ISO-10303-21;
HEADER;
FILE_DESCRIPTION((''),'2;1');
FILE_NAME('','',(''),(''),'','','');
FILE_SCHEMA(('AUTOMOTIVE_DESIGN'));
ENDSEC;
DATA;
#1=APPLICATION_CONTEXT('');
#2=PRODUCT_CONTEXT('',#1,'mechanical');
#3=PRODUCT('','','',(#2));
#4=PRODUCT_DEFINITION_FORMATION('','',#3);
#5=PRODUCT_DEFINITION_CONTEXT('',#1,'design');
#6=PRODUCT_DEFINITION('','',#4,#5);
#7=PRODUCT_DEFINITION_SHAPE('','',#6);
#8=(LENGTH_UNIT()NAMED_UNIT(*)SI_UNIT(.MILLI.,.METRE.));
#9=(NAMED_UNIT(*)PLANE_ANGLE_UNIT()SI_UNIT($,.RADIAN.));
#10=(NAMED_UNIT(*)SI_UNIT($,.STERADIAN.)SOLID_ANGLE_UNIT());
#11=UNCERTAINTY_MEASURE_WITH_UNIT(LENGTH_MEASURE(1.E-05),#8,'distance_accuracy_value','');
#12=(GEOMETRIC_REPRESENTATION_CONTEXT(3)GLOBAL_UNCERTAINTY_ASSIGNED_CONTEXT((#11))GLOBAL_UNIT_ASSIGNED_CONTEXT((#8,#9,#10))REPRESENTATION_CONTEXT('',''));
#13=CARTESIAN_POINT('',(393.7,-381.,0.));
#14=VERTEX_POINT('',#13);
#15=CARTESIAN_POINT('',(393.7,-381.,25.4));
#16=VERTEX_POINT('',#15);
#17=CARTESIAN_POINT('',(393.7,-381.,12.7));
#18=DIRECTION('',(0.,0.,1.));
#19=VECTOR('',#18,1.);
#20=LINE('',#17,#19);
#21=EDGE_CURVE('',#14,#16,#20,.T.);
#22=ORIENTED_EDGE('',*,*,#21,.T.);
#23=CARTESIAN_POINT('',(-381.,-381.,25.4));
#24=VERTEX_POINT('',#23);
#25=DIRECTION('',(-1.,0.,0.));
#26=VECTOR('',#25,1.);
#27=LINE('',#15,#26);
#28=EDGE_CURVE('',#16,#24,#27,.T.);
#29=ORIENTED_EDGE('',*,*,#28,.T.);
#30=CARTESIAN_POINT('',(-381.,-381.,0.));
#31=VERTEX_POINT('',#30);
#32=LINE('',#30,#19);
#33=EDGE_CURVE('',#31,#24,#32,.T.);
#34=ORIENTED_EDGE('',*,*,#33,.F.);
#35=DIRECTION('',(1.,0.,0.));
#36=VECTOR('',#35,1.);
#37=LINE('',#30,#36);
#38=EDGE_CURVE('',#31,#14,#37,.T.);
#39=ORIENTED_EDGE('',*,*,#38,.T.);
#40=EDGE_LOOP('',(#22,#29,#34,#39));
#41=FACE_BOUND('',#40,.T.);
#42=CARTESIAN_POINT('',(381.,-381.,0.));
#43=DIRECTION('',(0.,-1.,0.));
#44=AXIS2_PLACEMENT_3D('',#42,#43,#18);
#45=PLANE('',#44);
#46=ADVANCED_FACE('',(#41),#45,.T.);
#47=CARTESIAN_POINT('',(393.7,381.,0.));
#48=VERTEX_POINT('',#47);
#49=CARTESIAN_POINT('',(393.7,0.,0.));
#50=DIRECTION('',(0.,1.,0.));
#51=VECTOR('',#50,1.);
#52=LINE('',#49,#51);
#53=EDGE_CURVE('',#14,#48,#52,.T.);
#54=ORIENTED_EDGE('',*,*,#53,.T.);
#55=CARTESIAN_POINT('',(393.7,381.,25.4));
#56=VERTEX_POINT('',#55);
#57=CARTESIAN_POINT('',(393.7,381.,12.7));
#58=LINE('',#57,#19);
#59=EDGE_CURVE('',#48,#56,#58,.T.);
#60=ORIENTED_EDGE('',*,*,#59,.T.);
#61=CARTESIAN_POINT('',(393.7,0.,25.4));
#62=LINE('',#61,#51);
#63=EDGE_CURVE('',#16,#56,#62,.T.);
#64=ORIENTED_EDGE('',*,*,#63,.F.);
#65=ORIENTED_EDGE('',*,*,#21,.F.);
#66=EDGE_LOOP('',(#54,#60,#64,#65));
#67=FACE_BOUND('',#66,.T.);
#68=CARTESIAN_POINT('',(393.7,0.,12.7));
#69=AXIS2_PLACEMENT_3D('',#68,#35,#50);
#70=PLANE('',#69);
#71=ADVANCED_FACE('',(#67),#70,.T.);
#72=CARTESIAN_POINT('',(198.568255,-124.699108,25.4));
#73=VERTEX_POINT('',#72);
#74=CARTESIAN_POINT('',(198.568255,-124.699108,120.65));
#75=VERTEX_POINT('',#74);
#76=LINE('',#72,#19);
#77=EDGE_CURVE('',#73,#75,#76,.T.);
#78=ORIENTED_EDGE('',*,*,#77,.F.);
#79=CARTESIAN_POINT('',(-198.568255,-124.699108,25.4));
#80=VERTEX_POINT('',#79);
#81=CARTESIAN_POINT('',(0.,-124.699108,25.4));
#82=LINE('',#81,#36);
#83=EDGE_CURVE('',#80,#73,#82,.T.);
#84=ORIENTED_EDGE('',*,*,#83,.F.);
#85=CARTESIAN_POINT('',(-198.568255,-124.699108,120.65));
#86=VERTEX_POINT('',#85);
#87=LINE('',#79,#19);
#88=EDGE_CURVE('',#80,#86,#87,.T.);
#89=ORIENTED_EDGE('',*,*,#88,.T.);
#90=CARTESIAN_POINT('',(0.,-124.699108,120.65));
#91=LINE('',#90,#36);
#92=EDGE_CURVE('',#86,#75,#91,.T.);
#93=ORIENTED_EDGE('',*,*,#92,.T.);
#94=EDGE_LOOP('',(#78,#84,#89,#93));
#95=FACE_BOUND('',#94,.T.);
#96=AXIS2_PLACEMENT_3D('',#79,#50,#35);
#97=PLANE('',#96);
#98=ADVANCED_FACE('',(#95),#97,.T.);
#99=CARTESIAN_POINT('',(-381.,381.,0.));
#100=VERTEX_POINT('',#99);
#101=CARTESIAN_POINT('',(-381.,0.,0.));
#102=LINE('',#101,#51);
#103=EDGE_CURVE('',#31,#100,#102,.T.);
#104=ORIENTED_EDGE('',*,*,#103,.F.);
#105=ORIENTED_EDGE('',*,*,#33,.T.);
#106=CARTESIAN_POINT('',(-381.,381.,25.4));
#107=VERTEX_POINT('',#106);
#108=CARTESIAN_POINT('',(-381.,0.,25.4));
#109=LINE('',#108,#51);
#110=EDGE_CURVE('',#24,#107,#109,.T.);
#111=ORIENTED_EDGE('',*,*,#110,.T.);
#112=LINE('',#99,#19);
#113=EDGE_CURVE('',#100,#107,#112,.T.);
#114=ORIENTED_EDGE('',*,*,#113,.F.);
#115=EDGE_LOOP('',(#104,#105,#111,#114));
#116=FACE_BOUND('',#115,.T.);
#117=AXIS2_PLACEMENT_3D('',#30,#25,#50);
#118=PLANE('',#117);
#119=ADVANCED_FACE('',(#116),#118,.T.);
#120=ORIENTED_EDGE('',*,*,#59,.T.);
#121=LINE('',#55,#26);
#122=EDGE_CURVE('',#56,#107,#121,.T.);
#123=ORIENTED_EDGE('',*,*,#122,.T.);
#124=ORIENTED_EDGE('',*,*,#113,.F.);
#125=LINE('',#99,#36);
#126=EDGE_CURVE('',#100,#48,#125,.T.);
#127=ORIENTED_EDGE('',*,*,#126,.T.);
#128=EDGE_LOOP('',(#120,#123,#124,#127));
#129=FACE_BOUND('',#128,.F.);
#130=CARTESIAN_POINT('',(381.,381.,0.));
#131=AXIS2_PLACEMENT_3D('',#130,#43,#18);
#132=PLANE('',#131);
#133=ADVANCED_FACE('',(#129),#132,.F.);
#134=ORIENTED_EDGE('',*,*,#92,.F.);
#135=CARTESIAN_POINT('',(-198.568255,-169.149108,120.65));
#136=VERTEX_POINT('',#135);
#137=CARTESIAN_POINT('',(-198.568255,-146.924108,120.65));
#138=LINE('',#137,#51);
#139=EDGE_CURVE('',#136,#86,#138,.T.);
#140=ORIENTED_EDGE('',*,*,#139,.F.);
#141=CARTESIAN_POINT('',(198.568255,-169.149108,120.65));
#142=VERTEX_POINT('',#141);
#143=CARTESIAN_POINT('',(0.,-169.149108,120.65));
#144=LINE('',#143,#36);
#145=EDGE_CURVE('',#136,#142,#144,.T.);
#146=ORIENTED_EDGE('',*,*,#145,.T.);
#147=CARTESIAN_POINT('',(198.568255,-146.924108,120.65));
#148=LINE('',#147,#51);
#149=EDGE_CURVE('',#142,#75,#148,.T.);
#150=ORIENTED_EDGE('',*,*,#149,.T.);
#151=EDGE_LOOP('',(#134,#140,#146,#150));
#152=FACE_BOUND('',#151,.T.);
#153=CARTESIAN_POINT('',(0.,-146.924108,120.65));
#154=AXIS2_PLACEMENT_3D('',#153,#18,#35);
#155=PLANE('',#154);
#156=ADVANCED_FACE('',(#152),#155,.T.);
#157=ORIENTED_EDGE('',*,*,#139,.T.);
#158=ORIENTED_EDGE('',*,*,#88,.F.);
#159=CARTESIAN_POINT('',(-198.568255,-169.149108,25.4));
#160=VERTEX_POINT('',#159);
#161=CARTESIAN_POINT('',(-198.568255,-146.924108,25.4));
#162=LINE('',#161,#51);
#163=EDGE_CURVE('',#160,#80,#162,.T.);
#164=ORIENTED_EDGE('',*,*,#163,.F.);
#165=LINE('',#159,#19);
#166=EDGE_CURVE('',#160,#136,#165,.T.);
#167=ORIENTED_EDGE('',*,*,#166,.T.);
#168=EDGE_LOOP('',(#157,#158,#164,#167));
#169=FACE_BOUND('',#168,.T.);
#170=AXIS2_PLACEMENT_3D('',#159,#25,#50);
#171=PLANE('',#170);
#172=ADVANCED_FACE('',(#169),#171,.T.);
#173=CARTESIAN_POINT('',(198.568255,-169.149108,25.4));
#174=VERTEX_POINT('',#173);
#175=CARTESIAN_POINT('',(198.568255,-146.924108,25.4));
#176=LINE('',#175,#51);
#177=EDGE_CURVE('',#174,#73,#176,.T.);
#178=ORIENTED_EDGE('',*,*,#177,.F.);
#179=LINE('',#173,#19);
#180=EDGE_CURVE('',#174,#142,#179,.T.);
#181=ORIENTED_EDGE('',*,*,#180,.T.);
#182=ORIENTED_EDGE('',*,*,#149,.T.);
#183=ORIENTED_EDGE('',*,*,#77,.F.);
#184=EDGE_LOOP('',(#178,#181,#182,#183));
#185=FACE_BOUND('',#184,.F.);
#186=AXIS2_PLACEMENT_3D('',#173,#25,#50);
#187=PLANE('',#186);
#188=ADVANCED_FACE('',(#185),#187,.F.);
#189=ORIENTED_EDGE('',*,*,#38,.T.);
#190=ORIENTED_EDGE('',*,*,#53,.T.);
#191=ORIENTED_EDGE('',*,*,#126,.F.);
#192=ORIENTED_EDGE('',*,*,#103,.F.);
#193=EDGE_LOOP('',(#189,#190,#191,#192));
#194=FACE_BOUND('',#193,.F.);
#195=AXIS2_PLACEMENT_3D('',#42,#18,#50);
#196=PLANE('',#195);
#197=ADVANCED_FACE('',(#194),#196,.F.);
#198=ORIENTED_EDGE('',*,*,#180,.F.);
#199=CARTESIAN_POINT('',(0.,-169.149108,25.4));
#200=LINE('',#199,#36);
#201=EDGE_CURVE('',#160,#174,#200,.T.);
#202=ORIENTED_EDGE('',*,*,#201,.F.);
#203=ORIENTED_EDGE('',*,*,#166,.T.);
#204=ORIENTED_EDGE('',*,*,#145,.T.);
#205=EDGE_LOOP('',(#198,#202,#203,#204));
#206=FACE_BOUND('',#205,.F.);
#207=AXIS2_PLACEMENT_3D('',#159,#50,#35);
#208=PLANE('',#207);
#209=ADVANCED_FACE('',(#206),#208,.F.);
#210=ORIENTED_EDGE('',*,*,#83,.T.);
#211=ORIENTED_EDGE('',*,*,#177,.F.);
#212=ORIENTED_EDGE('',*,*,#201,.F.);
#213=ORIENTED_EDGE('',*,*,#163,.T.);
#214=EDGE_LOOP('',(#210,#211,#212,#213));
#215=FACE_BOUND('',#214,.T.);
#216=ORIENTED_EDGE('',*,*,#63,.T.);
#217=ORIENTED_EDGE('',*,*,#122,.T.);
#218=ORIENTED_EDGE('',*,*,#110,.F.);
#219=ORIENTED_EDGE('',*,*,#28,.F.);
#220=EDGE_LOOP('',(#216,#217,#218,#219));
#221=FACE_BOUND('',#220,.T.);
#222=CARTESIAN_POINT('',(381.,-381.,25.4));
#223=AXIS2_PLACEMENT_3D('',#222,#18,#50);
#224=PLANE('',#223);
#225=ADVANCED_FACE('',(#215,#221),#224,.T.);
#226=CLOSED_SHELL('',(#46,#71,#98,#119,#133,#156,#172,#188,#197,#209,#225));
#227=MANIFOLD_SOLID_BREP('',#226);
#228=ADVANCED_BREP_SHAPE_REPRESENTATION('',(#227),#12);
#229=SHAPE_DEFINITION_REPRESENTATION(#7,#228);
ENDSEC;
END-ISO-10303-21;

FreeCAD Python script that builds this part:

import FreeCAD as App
import Part
import Sketcher
Q = App.Units.Quantity


def add_polygon(sketch, points):
    """Adds a closed chain of lines whose ends are joined by coincident constraints."""
    first, n = sketch.GeometryCount, len(points)
    for a, b in zip(points, points[1:] + points[:1]):
        sketch.addGeometry(Part.LineSegment(App.Vector(*a, 0), App.Vector(*b, 0)), False)
    for i in range(n):
        sketch.addConstraint(Sketcher.Constraint("Coincident", first + i, 2, first + (i + 1) % n, 1))

doc = App.newDocument("Part")
body = doc.addObject("PartDesign::Body", "Body")

# Sketch on XY plane
sketch1 = doc.addObject("Sketcher::SketchObject", "Sketch")
body.addObject(sketch1)
sketch1.AttachmentSupport = (doc.XY_Plane, [""])
sketch1.MapMode = "FlatFace"
add_polygon(sketch1, [(-381, 381), (-381, -381), (381, -381), (381, 381)])  # lines 0-3
sketch1.addConstraint([
    Sketcher.Constraint("Vertical", 0),
    Sketcher.Constraint("Horizontal", 1),
    Sketcher.Constraint("Vertical", 2),
    Sketcher.Constraint("Horizontal", 3),
    Sketcher.Constraint("Symmetric", 0, 2, 2, 2, -1, 1),
    Sketcher.Constraint("Equal", 3, 0),
    Sketcher.Constraint("DistanceX", 1, 1, 1, 2, Q("30 in")),
])
pad1 = doc.addObject("PartDesign::Pad", "Pad")
body.addObject(pad1)
pad1.Profile = sketch1
pad1.Length = Q("1 in")

# Sketch on YZ plane
sketch2 = doc.addObject("Sketcher::SketchObject", "Sketch001")
body.addObject(sketch2)
sketch2.AttachmentSupport = (doc.YZ_Plane, [""])
sketch2.MapMode = "FlatFace"
sketch2.AttachmentOffset = App.Placement(App.Vector(0, 0, 15 * 25.4), App.Rotation())
add_polygon(sketch2, [(-381, 25), (-381, 0), (381, 0), (381, 25)])  # lines 0-3
sketch2.addConstraint([
    Sketcher.Constraint("Vertical", 0),
    Sketcher.Constraint("Horizontal", 1),
    Sketcher.Constraint("Vertical", 2),
    Sketcher.Constraint("Horizontal", 3),
    Sketcher.Constraint("Symmetric", 0, 2, 1, 2, -1, 1),
    Sketcher.Constraint("DistanceX", 1, 1, 1, 2, Q("30 in")),
    Sketcher.Constraint("DistanceY", 0, 2, 0, 1, Q("1 in")),
])
pad2 = doc.addObject("PartDesign::Pad", "Pad001")
body.addObject(pad2)
pad2.Profile = sketch2
pad2.Length = Q("0.5 in")

# Sketch on XY plane
sketch3 = doc.addObject("Sketcher::SketchObject", "Sketch002")
body.addObject(sketch3)
sketch3.AttachmentSupport = (doc.XY_Plane, [""])
sketch3.MapMode = "FlatFace"
sketch3.AttachmentOffset = App.Placement(App.Vector(0, 0, 1 * 25.4), App.Rotation())
add_polygon(sketch3, [(-199, -125), (-199, -169), (199, -169), (199, -125)])  # lines 0-3
sketch3.addConstraint([
    Sketcher.Constraint("Vertical", 0),
    Sketcher.Constraint("Horizontal", 1),
    Sketcher.Constraint("Vertical", 2),
    Sketcher.Constraint("Horizontal", 3),
    Sketcher.Constraint("DistanceY", 0, 2, 0, 1, Q("1.75 in")),
    Sketcher.Constraint("DistanceX", 1, 1, 1, 2, Q("397.13651 mm")),
    Sketcher.Constraint("DistanceY", 0, 2, -1, 1, Q("169.149108 mm")),
    Sketcher.Constraint("DistanceX", 0, 2, -1, 1, Q("198.568255 mm")),
])
pad3 = doc.addObject("PartDesign::Pad", "Pad002")
body.addObject(pad3)
pad3.Profile = sketch3
pad3.Length = Q("3.75 in")

doc.recompute()
